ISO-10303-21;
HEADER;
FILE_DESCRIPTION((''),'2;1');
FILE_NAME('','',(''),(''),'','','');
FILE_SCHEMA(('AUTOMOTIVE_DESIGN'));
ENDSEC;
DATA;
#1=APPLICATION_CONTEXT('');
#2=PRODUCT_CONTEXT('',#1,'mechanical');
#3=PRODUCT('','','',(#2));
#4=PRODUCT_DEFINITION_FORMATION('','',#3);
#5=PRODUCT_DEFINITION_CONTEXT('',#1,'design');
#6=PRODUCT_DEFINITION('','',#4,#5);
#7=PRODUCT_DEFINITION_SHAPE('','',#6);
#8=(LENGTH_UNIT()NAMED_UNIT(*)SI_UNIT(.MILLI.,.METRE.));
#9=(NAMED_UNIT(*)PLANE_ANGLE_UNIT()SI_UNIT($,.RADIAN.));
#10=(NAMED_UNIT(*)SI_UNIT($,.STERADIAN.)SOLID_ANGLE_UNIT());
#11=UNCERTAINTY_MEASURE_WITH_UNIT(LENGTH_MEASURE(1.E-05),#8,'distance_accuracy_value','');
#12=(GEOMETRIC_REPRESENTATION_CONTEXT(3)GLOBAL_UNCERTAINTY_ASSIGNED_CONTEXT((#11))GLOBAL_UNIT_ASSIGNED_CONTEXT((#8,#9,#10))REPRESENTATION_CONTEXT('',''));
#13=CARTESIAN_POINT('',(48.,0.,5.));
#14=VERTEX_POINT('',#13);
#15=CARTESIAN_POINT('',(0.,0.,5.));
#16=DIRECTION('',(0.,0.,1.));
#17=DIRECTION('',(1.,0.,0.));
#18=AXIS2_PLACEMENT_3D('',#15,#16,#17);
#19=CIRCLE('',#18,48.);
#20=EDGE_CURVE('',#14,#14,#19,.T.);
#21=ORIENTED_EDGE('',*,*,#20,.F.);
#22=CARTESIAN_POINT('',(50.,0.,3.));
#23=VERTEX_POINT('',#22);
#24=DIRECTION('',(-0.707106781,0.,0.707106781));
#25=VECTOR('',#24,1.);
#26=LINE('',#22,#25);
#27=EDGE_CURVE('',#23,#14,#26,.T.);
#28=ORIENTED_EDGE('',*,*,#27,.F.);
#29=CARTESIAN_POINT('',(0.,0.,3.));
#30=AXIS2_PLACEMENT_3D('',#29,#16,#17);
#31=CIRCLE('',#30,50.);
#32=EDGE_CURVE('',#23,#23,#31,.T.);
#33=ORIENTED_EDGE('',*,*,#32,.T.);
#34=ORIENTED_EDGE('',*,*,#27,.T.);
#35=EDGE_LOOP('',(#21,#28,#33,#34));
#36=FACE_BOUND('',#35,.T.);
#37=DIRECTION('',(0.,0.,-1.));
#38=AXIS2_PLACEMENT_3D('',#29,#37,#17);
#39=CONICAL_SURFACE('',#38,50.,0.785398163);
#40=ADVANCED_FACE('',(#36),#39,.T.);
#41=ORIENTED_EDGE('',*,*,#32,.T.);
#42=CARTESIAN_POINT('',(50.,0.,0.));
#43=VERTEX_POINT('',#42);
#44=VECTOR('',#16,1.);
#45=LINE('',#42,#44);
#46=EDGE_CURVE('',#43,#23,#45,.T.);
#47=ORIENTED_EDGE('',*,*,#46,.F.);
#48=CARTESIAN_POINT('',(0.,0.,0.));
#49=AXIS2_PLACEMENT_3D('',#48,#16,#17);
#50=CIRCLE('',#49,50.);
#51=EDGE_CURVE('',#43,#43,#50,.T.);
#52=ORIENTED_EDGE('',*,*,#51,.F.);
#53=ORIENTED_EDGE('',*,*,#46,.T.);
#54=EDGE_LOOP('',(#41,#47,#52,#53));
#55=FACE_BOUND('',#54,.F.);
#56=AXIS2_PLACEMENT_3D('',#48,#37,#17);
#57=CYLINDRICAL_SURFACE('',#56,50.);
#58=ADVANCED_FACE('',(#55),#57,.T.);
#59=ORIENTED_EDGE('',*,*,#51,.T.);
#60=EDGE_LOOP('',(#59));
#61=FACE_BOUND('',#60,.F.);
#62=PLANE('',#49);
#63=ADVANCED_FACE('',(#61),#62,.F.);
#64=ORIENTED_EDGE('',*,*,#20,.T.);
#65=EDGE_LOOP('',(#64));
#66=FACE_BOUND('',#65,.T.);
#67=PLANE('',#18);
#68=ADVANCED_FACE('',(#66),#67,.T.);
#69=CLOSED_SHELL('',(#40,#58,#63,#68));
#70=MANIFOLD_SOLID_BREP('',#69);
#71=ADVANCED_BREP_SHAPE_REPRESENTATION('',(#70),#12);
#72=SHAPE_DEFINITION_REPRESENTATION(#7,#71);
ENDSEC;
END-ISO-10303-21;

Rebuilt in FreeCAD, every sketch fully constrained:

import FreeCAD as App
import Part
import Sketcher
from FreeCAD import Vector
Q = App.Units.Quantity


def edges_at(feature, points):
    """Names of the edges that pass closest to the given points."""
    edges = feature.Shape.Edges
    near = lambda p: min(range(len(edges)), key=lambda i: edges[i].distToShape(Part.Vertex(*p))[0])
    return sorted({f"Edge{near(p) + 1}" for p in points})

doc = App.newDocument("Part")
params = doc.addObject("Spreadsheet::Sheet", "Params")
for row, (alias, value) in enumerate([
    ("sketch1_diameter", "100 mm"),
    ("pad1_length", "5 mm"),
    ("chamfer_size", "2 mm"),
    ("chamfer_size2", "2 mm"),
], start=1):
    params.set(f"A{row}", alias)
    params.set(f"B{row}", "=" + value)
    params.setAlias(f"B{row}", alias)

body = doc.addObject("PartDesign::Body", "Body")

# Sketch on XY plane
sketch1 = body.newObject("Sketcher::SketchObject", "Sketch")
sketch1.AttachmentSupport = (doc.getObject("XY_Plane"), [""])
sketch1.MapMode = "FlatFace"
sketch1.addGeometry(Part.Circle(Vector(0, 0, 0), Vector(0, 0, 1), 50), False)
sketch1.addConstraint(Sketcher.Constraint("Coincident", 0, 3, -1, 1))
sketch1.addConstraint(Sketcher.Constraint("Diameter", 0, Q("100 mm")))
sketch1.setExpression("Constraints[1]", "Params.sketch1_diameter")
pad1 = body.newObject("PartDesign::Pad", "Pad")
pad1.Profile = sketch1
pad1.setExpression("Length", "Params.pad1_length")
doc.recompute()

chamfer = body.newObject("PartDesign::Chamfer", "Chamfer")
chamfer.Base = (pad1, edges_at(pad1, [(-50, 0, 5)]))
chamfer.ChamferType = "Two distances"
chamfer.setExpression("Size", "Params.chamfer_size")
chamfer.setExpression("Size2", "Params.chamfer_size2")

doc.recompute()
